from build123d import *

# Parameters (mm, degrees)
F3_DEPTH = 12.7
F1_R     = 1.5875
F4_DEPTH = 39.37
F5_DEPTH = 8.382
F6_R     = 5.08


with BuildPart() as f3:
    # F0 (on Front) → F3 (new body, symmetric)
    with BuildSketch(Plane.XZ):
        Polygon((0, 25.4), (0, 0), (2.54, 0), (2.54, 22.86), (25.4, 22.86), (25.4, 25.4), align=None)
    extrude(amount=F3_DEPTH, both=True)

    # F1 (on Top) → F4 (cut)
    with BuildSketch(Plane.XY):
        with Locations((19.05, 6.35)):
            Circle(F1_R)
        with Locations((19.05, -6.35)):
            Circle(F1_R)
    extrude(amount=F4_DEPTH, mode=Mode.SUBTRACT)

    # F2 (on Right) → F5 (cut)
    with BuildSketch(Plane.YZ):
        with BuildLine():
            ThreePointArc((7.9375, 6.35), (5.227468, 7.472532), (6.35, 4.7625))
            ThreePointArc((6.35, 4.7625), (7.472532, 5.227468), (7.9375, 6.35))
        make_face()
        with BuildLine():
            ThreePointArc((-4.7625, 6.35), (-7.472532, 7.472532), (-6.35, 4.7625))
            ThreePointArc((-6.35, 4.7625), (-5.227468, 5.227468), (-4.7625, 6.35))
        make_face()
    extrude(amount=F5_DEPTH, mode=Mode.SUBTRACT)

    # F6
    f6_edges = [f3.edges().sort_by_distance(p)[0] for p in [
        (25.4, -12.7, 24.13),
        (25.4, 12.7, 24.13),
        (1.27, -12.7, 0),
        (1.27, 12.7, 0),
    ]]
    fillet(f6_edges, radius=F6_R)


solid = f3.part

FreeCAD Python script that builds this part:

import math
import FreeCAD as App
import Part
import Sketcher
from FreeCAD import Vector
Q = App.Units.Quantity


def edges_at(feature, points):
    """Names of the edges that pass closest to the given points."""
    edges = feature.Shape.Edges
    near = lambda p: min(range(len(edges)), key=lambda i: edges[i].distToShape(Part.Vertex(*p))[0])
    return sorted({f"Edge{near(p) + 1}" for p in points})


def add_polygon(sketch, points):
    """Adds a closed chain of lines whose ends are joined by coincident constraints."""
    first, n = sketch.GeometryCount, len(points)
    for a, b in zip(points, points[1:] + points[:1]):
        sketch.addGeometry(Part.LineSegment(App.Vector(*a, 0), App.Vector(*b, 0)), False)
    for i in range(n):
        sketch.addConstraint(Sketcher.Constraint("Coincident", first + i, 2, first + (i + 1) % n, 1))

doc = App.newDocument("Part")
body = doc.addObject("PartDesign::Body", "Body")

sketch1 = body.newObject("Sketcher::SketchObject", "Sketch")
sketch1.AttachmentSupport = (doc.getObject("XZ_Plane"), [""])
sketch1.MapMode = "FlatFace"
add_polygon(sketch1, [(0, 25.4), (0, 0), (2.54, 0), (2.54, 22.86), (25.4, 22.86), (25.4, 25.4)])
sketch1.addConstraint(Sketcher.Constraint("Vertical", 0))
sketch1.addConstraint(Sketcher.Constraint("Horizontal", 1))
sketch1.addConstraint(Sketcher.Constraint("Vertical", 2))
sketch1.addConstraint(Sketcher.Constraint("Horizontal", 3))
sketch1.addConstraint(Sketcher.Constraint("Vertical", 4))
sketch1.addConstraint(Sketcher.Constraint("Horizontal", 5))
sketch1.addConstraint(Sketcher.Constraint("Coincident", 0, 2, -1, 1))
sketch1.addConstraint(Sketcher.Constraint("Equal", 5, 0))
sketch1.addConstraint(Sketcher.Constraint("Equal", 3, 2))
sketch1.addConstraint(Sketcher.Constraint("DistanceX", 5, 2, 5, 1, Q("1 in")))
sketch1.addConstraint(Sketcher.Constraint("DistanceX", 1, 1, 1, 2, Q("0.1 in")))
pad1 = body.newObject("PartDesign::Pad", "Pad")
pad1.Profile = sketch1
pad1.Length = Q("1 in")
pad1.Midplane = True

sketch2 = body.newObject("Sketcher::SketchObject", "Sketch001")
sketch2.AttachmentSupport = (doc.getObject("XY_Plane"), [""])
sketch2.MapMode = "FlatFace"
sketch2.addGeometry(Part.Circle(Vector(19.05, 6.35, 0), Vector(0, 0, 1), 1.5875), False)
sketch2.addGeometry(Part.Circle(Vector(19.05, -6.35, 0), Vector(0, 0, 1), 1.5875), False)
sketch2.addConstraint(Sketcher.Constraint("Equal", 0, 1))
sketch2.addConstraint(Sketcher.Constraint("Symmetric", 0, 3, 1, 3, -1))
sketch2.addConstraint(Sketcher.Constraint("Diameter", 0, Q("0.125 in")))
sketch2.addConstraint(Sketcher.Constraint("DistanceY", 1, 3, 0, 3, Q("0.5 in")))
sketch2.addConstraint(Sketcher.Constraint("DistanceX", -1, 1, 0, 3, Q("0.75 in")))
pocket1 = body.newObject("PartDesign::Pocket", "Pocket")
pocket1.Profile = sketch2
pocket1.Length = Q("1.55 in")
pocket1.Reversed = True

sketch3 = body.newObject("Sketcher::SketchObject", "Sketch002")
sketch3.AttachmentSupport = (doc.getObject("YZ_Plane"), [""])
sketch3.MapMode = "FlatFace"
sketch3.addGeometry(Part.ArcOfCircle(Part.Circle(Vector(6.35, 6.35, 0), Vector(0, 0, 1), 1.5875), math.radians(0), math.radians(270)), False)
sketch3.addGeometry(Part.ArcOfCircle(Part.Circle(Vector(6.35, 6.35, 0), Vector(0, 0, 1), 1.5875), math.radians(-89.999998), math.radians(-0.000002)), False)
sketch3.addGeometry(Part.ArcOfCircle(Part.Circle(Vector(-6.35, 6.35, 0), Vector(0, 0, 1), 1.5875), math.radians(0), math.radians(270)), False)
sketch3.addGeometry(Part.ArcOfCircle(Part.Circle(Vector(-6.35, 6.35, 0), Vector(0, 0, 1), 1.5875), math.radians(-89.999998), math.radians(-0.000002)), False)
sketch3.addConstraint(Sketcher.Constraint("Tangent", 0, 1, 1, 2))
sketch3.addConstraint(Sketcher.Constraint("Coincident", 1, 1, 0, 2))
sketch3.addConstraint(Sketcher.Constraint("Tangent", 2, 1, 3, 2))
sketch3.addConstraint(Sketcher.Constraint("Coincident", 3, 1, 2, 2))
sketch3.addConstraint(Sketcher.Constraint("Equal", 1, 2))
sketch3.addConstraint(Sketcher.Constraint("Symmetric", 0, 3, 2, 3, -2))
sketch3.addConstraint(Sketcher.Constraint("Horizontal", 3, 3, 0, 1))
sketch3.addConstraint(Sketcher.Constraint("Horizontal", 0, 1, 2, 1))
sketch3.addConstraint(Sketcher.Constraint("Vertical", 0, 3, 1, 1))
sketch3.addConstraint(Sketcher.Constraint("Vertical", 2, 3, 3, 1))
sketch3.addConstraint(Sketcher.Constraint("Radius", 0, Q("0.0625 in")))
sketch3.addConstraint(Sketcher.Constraint("DistanceX", 2, 3, 1, 3, Q("0.5 in")))
sketch3.addConstraint(Sketcher.Constraint("DistanceY", -1, 1, 0, 3, Q("0.25 in")))
pocket2 = body.newObject("PartDesign::Pocket", "Pocket001")
pocket2.Profile = sketch3
pocket2.Length = Q("0.33 in")
pocket2.Reversed = True
doc.recompute()

fillet = body.newObject("PartDesign::Fillet", "Fillet")
fillet.Base = (pocket2, edges_at(pocket2, [
    (25.4, -12.7, 24.13),
    (25.4, 12.7, 24.13),
    (1.27, -12.7, 0),
    (1.27, 12.7, 0),
]))
fillet.Radius = Q("0.2 in")

doc.recompute()
